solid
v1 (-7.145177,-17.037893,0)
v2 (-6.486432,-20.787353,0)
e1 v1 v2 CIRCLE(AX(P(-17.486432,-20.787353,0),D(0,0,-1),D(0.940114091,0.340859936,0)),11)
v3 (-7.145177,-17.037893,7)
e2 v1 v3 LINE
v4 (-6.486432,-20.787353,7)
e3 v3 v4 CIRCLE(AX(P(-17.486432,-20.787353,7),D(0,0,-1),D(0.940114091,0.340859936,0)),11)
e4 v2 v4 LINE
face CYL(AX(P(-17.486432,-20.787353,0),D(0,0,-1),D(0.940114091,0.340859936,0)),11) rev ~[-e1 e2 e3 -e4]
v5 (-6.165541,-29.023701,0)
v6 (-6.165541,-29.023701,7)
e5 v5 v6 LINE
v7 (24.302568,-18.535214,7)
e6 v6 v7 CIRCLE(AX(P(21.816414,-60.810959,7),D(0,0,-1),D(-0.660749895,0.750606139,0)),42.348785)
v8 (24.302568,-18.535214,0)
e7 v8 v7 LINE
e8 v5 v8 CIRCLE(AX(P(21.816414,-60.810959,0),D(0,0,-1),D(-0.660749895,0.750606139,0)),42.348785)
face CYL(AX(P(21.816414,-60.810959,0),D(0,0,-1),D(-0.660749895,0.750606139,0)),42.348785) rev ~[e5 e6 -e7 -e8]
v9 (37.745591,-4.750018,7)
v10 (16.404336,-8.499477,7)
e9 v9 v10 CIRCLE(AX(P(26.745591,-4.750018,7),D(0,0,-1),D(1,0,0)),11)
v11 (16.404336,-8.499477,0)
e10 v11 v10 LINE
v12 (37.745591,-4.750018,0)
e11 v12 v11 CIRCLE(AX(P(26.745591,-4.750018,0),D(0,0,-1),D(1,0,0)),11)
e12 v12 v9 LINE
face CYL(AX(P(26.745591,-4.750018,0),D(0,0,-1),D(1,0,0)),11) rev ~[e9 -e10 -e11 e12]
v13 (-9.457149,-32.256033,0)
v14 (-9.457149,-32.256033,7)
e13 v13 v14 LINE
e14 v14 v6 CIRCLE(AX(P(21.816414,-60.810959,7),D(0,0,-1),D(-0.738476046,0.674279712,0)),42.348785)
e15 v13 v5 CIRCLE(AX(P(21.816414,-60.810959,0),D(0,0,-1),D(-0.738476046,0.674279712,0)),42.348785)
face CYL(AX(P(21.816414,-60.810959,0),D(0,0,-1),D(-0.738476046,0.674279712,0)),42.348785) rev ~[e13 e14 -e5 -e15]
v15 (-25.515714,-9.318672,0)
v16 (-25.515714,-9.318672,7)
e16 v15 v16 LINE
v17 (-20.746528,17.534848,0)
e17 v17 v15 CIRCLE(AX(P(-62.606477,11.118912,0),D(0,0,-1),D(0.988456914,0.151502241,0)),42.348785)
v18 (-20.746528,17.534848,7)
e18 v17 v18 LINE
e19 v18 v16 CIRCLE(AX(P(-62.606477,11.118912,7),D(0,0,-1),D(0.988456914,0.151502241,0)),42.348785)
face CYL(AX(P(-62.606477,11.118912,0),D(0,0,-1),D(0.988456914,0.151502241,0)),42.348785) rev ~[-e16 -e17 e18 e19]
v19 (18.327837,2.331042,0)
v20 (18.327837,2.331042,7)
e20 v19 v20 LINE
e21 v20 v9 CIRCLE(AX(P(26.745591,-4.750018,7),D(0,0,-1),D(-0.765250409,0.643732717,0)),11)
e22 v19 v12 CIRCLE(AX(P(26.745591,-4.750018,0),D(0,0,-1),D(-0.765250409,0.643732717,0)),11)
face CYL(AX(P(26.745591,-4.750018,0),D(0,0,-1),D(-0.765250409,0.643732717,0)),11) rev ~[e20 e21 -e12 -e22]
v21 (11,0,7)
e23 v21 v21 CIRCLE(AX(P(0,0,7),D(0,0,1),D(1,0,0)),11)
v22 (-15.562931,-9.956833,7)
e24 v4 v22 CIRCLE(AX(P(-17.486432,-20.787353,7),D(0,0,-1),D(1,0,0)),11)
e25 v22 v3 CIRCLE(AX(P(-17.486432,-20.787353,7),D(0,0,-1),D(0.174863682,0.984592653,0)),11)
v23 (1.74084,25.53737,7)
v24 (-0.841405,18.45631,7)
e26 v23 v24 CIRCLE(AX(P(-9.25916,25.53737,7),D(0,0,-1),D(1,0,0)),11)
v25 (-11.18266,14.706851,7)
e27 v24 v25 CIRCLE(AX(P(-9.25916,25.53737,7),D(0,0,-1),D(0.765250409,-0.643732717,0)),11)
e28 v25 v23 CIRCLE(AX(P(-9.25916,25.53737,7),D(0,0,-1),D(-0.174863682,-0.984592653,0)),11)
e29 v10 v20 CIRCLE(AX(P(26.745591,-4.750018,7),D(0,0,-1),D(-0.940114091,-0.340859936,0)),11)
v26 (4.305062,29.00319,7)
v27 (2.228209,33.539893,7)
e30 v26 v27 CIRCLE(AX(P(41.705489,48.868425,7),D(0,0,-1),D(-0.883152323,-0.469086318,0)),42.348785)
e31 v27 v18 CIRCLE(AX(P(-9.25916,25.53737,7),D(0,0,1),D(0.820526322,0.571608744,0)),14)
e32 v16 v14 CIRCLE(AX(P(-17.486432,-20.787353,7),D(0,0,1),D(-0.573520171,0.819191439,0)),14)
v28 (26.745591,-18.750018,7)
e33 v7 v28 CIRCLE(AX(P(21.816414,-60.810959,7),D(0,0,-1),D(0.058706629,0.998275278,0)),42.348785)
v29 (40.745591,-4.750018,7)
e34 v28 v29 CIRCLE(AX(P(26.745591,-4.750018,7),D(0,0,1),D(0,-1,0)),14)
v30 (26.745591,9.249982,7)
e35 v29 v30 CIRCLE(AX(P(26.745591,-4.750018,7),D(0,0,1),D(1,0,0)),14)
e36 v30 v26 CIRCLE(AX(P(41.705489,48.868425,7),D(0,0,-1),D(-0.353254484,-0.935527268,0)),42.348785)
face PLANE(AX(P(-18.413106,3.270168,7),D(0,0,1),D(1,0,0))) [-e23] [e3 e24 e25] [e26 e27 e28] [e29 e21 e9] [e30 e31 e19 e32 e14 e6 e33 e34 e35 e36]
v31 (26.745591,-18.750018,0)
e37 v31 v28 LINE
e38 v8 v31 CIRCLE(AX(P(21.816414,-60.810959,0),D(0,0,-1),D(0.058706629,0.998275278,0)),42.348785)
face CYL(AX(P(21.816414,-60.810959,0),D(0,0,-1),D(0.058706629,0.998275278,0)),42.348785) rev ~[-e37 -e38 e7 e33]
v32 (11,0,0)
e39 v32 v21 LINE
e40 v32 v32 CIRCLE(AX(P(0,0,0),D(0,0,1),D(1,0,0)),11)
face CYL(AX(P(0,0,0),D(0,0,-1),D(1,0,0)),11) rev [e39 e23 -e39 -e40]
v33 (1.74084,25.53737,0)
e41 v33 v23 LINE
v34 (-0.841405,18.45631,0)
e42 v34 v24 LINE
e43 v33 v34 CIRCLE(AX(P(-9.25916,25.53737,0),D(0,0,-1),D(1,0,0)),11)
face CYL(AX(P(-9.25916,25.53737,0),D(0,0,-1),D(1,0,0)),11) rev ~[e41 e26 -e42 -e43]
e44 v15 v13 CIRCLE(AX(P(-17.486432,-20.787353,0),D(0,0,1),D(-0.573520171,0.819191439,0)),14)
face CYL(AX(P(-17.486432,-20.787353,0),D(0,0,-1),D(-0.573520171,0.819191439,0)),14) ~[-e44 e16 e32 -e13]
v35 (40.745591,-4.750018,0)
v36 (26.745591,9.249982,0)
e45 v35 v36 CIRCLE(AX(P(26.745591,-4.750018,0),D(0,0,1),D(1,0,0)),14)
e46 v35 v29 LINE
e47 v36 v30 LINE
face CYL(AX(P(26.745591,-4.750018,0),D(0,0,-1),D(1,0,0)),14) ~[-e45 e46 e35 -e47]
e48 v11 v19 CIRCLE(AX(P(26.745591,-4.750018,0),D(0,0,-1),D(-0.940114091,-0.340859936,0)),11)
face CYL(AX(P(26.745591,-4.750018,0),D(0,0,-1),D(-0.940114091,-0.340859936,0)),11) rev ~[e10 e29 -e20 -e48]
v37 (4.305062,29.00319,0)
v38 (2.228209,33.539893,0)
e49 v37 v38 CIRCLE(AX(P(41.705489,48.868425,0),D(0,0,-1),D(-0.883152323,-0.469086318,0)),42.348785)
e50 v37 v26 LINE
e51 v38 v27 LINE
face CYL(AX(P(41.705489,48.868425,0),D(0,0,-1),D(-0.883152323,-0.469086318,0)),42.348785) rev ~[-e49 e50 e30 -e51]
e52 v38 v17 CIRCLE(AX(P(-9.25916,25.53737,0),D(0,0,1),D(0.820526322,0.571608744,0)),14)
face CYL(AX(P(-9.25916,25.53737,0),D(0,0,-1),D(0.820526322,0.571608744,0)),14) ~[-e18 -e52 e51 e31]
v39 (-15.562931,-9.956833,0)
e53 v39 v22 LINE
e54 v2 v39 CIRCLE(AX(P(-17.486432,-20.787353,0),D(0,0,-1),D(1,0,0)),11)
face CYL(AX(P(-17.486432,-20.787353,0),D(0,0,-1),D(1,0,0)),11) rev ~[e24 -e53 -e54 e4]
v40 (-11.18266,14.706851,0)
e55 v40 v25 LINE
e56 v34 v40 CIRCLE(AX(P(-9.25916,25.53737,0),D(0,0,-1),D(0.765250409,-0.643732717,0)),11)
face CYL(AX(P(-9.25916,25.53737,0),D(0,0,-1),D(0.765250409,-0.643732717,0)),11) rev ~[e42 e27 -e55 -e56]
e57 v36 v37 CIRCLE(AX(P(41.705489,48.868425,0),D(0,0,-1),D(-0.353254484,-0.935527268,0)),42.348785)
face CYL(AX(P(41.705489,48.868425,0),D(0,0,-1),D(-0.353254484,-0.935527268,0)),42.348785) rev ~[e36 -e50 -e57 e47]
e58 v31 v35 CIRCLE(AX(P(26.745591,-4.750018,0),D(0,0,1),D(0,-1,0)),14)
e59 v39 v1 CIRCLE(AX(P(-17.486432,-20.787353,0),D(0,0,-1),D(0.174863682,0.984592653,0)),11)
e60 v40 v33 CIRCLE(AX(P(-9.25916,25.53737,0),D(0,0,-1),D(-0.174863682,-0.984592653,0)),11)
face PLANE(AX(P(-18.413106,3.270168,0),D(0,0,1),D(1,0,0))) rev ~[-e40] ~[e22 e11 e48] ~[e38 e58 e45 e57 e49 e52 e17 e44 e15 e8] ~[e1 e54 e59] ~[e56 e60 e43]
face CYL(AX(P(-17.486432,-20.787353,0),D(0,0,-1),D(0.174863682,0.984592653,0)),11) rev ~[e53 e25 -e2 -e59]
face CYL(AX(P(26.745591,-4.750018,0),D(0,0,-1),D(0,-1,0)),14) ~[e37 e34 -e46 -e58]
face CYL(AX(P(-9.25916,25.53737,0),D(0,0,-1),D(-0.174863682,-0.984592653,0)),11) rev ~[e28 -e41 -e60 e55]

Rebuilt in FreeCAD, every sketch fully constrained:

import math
import FreeCAD as App
import Part
import Sketcher

V = App.Vector
Q = App.Units.Quantity

doc = App.newDocument("Part")
body = doc.addObject("PartDesign::Body", "Body")

sketch1 = body.newObject("Sketcher::SketchObject", "Sketch")
sketch1.AttachmentSupport = (doc.getObject("XY_Plane"), [""])
sketch1.MapMode = "FlatFace"
sketch1.addGeometry([
    Part.ArcOfCircle(Part.Circle(V(-62.6, 11.1, 0), V(0, 0, 1), 42.3), math.radians(-29), math.radians(9)),
    Part.ArcOfCircle(Part.Circle(V(-17.5, -20.8, 0), V(0, 0, 1), 14), math.radians(125), math.radians(305)),
    Part.ArcOfCircle(Part.Circle(V(21.8, -60.8, 0), V(0, 0, 1), 42.3), math.radians(131.36), math.radians(137.6)),
    Part.ArcOfCircle(Part.Circle(V(21.8, -60.8, 0), V(0, 0, 1), 42.3), math.radians(87), math.radians(131)),
    Part.ArcOfCircle(Part.Circle(V(21.8, -60.8, 0), V(0, 0, 1), 42.3), math.radians(83.32), math.radians(86.63)),
    Part.ArcOfCircle(Part.Circle(V(26.7, -4.8, 0), V(0, 0, 1), 14), math.radians(-90), math.radians(0)),
    Part.ArcOfCircle(Part.Circle(V(26.7, -4.8, 0), V(0, 0, 1), 14), math.radians(0), math.radians(90)),
    Part.ArcOfCircle(Part.Circle(V(41.7, 48.9, 0), V(0, 0, 1), 42.3), math.radians(-152), math.radians(-111)),
    Part.ArcOfCircle(Part.Circle(V(41.7, 48.9, 0), V(0, 0, 1), 42.3), math.radians(-158.78), math.radians(-152.02)),
    Part.ArcOfCircle(Part.Circle(V(-9.3, 25.5, 0), V(0, 0, 1), 14), math.radians(35), math.radians(215)),
    Part.ArcOfCircle(Part.Circle(V(26.7, -4.8, 0), V(0, 0, 1), 11), math.radians(140), math.radians(200)),
    Part.ArcOfCircle(Part.Circle(V(26.7, -4.8, 0), V(0, 0, 1), 11), math.radians(0), math.radians(140)),
    Part.ArcOfCircle(Part.Circle(V(26.7, -4.8, 0), V(0, 0, 1), 11), math.radians(-160), math.radians(0)),
    Part.ArcOfCircle(Part.Circle(V(-9.3, 25.5, 0), V(0, 0, 1), 11), math.radians(-100), math.radians(-40)),
    Part.ArcOfCircle(Part.Circle(V(-9.3, 25.5, 0), V(0, 0, 1), 11), math.radians(0), math.radians(260)),
    Part.ArcOfCircle(Part.Circle(V(-9.3, 25.5, 0), V(0, 0, 1), 11), math.radians(-40), math.radians(0)),
    Part.ArcOfCircle(Part.Circle(V(-17.5, -20.8, 0), V(0, 0, 1), 11), math.radians(0), math.radians(19.93)),
    Part.ArcOfCircle(Part.Circle(V(-17.5, -20.8, 0), V(0, 0, 1), 11), math.radians(80), math.radians(360)),
    Part.ArcOfCircle(Part.Circle(V(-17.5, -20.8, 0), V(0, 0, 1), 11), math.radians(20), math.radians(80)),
    Part.Circle(V(0, 0, 0), V(0, 0, 1), 11),
], False)
sketch1.addConstraint([
    Sketcher.Constraint("Coincident", 0, 1, 1, 1),
    Sketcher.Constraint("Coincident", 1, 2, 2, 2),
    Sketcher.Constraint("Tangent", 2, 1, 3, 2),
    Sketcher.Constraint("Tangent", 3, 1, 4, 2),
    Sketcher.Constraint("Coincident", 4, 1, 5, 1),
    Sketcher.Constraint("Tangent", 5, 2, 6, 1),
    Sketcher.Constraint("Coincident", 6, 2, 7, 2),
    Sketcher.Constraint("Tangent", 7, 1, 8, 2),
    Sketcher.Constraint("Coincident", 8, 1, 9, 1),
    Sketcher.Constraint("Coincident", 9, 2, 0, 2),
    Sketcher.Constraint("Tangent", 10, 1, 11, 2),
    Sketcher.Constraint("Tangent", 11, 1, 12, 2),
    Sketcher.Constraint("Tangent", 12, 1, 10, 2),
    Sketcher.Constraint("Tangent", 13, 1, 14, 2),
    Sketcher.Constraint("Tangent", 14, 1, 15, 2),
    Sketcher.Constraint("Tangent", 15, 1, 13, 2),
    Sketcher.Constraint("Tangent", 16, 1, 17, 2),
    Sketcher.Constraint("Tangent", 17, 1, 18, 2),
    Sketcher.Constraint("Tangent", 18, 1, 16, 2),
    Sketcher.Constraint("Coincident", 19, 3, -1, 1),
    Sketcher.Constraint("Coincident", 4, 3, 2, 3),
    Sketcher.Constraint("Coincident", 10, 3, 5, 3),
    Sketcher.Constraint("Coincident", 13, 3, 9, 3),
    Sketcher.Constraint("Coincident", 16, 3, 1, 3),
    Sketcher.Constraint("Equal", 0, 2),
    Sketcher.Constraint("Equal", 1, 5),
    Sketcher.Constraint("Equal", 5, 6),
    Sketcher.Constraint("Equal", 4, 7),
    Sketcher.Constraint("Equal", 7, 8),
    Sketcher.Constraint("Equal", 6, 9),
    Sketcher.Constraint("Equal", 12, 13),
    Sketcher.Constraint("Equal", 15, 16),
    Sketcher.Constraint("Equal", 18, 19),
    Sketcher.Constraint("Horizontal", 12, 3, 5, 2),
    Sketcher.Constraint("Horizontal", 5, 2, 11, 1),
    Sketcher.Constraint("Horizontal", 15, 3, 14, 1),
    Sketcher.Constraint("Horizontal", 18, 3, 16, 1),
    Sketcher.Constraint("Vertical", 12, 3, 4, 1),
    Sketcher.Constraint("Vertical", 4, 1, 6, 2),
    Sketcher.Constraint("Diameter", 19, Q("22 mm")),
    Sketcher.Constraint("Radius", 1, Q("14 mm")),
    Sketcher.Constraint("Radius", 0, Q("42.348785 mm")),
    Sketcher.Constraint("DistanceY", 2, 1, -1, 1, Q("29.023701 mm")),
    Sketcher.Constraint("DistanceX", 5, 3, 7, 3, Q("14.959898 mm")),
    Sketcher.Constraint("DistanceX", 12, 1, 10, 1, Q("1.923501 mm")),
    Sketcher.Constraint("DistanceX", 13, 1, 9, 3, Q("1.923501 mm")),
    Sketcher.Constraint("DistanceX", 16, 3, 17, 1, Q("1.9235 mm")),
    Sketcher.Constraint("DistanceX", 1, 3, -1, 1, Q("17.486432 mm")),
    Sketcher.Constraint("DistanceY", 2, 3, -1, 1, Q("60.810959 mm")),
    Sketcher.Constraint("DistanceX", -1, 1, 5, 3, Q("26.745591 mm")),
    Sketcher.Constraint("DistanceX", 9, 3, -1, 1, Q("9.25916 mm")),
    Sketcher.Constraint("DistanceY", -1, 1, 9, 3, Q("25.53737 mm")),
    Sketcher.Constraint("DistanceX", 1, 2, -1, 1, Q("9.457149 mm")),
    Sketcher.Constraint("DistanceX", 2, 1, -1, 1, Q("6.165541 mm")),
    Sketcher.Constraint("DistanceX", -1, 1, 3, 1, Q("24.302568 mm")),
    Sketcher.Constraint("DistanceX", -1, 1, 7, 1, Q("4.305062 mm")),
    Sketcher.Constraint("DistanceX", 9, 2, -1, 1, Q("20.746528 mm")),
    Sketcher.Constraint("DistanceY", -1, 1, 15, 1, Q("18.45631 mm")),
    Sketcher.Constraint("DistanceX", 0, 3, 2, 3, Q("84.422891 mm")),
    Sketcher.Constraint("DistanceY", 10, 1, 6, 2, Q("6.91894 mm")),
    Sketcher.Constraint("DistanceY", 16, 1, 18, 1, Q("3.749459 mm")),
])
pad1 = body.newObject("PartDesign::Pad", "Pad")
pad1.Profile = sketch1
pad1.Length = 7

doc.recompute()
